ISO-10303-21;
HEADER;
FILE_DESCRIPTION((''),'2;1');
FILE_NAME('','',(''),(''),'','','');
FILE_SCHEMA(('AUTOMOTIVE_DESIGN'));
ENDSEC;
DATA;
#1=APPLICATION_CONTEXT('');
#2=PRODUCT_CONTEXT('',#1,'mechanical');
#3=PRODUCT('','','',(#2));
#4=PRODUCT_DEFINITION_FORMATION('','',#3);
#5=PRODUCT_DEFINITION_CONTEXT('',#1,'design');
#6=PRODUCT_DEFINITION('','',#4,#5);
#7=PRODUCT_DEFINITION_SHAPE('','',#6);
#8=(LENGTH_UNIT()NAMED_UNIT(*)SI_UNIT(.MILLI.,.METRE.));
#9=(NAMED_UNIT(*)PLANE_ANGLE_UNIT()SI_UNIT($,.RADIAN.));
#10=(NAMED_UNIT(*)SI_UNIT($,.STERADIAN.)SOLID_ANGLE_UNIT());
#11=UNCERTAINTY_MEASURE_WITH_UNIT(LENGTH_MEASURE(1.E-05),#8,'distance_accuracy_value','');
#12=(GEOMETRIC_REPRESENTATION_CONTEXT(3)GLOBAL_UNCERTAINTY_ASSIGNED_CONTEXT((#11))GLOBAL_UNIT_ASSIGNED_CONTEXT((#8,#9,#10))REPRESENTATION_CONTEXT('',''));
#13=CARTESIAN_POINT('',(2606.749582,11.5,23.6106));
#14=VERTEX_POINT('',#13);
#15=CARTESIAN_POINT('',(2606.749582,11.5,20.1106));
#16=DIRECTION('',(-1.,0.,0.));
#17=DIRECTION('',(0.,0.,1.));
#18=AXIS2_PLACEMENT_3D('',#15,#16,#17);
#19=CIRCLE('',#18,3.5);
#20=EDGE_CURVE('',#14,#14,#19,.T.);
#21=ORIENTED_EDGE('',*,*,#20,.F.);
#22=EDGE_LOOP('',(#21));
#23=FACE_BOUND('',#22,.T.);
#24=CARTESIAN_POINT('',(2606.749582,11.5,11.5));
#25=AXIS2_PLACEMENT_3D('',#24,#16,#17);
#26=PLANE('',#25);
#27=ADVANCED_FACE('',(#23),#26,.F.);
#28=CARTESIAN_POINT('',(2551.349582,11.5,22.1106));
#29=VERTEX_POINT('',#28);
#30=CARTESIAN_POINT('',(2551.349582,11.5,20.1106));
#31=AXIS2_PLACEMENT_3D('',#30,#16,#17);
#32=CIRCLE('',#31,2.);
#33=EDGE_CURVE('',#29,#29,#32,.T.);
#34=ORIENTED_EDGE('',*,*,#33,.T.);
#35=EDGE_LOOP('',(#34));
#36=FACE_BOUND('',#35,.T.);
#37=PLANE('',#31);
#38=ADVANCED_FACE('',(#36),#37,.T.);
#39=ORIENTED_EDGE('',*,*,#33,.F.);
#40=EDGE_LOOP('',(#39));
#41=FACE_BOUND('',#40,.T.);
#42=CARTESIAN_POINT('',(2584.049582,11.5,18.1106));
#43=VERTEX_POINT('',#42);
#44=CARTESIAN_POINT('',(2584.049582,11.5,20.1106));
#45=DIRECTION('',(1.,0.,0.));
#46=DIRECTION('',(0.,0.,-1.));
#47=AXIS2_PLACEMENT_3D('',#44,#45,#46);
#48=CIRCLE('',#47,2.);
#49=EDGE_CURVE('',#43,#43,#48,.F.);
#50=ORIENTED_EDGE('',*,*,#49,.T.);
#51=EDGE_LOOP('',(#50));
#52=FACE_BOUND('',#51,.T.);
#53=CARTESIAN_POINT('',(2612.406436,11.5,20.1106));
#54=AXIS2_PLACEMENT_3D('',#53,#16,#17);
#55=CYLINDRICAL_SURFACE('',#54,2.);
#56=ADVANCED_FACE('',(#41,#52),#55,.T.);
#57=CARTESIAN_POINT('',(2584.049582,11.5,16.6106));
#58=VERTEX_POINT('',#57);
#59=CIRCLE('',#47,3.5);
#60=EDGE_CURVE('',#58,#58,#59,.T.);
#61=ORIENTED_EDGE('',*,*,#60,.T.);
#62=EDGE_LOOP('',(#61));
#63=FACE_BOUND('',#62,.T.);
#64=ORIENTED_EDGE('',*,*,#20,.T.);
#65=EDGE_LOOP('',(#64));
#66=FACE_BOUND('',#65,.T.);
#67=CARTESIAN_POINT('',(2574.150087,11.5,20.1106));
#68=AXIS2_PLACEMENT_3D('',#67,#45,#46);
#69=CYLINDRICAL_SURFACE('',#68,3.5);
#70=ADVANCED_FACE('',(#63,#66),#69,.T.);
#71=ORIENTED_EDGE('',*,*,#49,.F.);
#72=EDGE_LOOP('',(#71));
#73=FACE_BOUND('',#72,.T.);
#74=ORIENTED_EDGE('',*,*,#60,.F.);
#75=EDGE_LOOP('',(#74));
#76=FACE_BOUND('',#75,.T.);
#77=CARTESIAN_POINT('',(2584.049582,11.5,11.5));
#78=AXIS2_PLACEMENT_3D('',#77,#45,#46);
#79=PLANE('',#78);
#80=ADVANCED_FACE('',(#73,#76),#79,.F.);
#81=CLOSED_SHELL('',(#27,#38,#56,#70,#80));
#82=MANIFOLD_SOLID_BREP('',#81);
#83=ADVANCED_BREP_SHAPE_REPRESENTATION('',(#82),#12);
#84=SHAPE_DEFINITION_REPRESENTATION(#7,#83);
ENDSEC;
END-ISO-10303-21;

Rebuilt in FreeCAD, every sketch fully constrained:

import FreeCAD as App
import Part
import Sketcher

V = App.Vector

doc = App.newDocument("Part")
params = doc.addObject("Spreadsheet::Sheet", "Params")
for row, (alias, value) in enumerate([
    ("sketch1_diameter", "4 mm"),
    ("pad1_length", "55.4 mm"),
    ("sketch2_diameter", "7 mm"),
    ("pad2_length", "22.7 mm"),
], start=1):
    params.set(f"A{row}", alias)
    params.set(f"B{row}", "=" + value)
    params.setAlias(f"B{row}", alias)

body = doc.addObject("PartDesign::Body", "Body")

sketch1 = body.newObject("Sketcher::SketchObject", "Sketch")
sketch1.AttachmentSupport = (doc.getObject("YZ_Plane"), [""])
sketch1.MapMode = "FlatFace"
sketch1.AttachmentOffset = App.Placement(V(0, 0, 2551.349582), App.Rotation())
sketch1.addGeometry(Part.Circle(V(11.5, 20.1106, 0), V(0, 0, 1), 2), False)
sketch1.addConstraint(Sketcher.Constraint("Diameter", 0, 4.0))
sketch1.addConstraint(Sketcher.Constraint("DistanceX", -1, 1, 0, 3, 11.5))
sketch1.addConstraint(Sketcher.Constraint("DistanceY", -1, 1, 0, 3, 20.1106))
sketch1.setExpression("Constraints[0]", "Params.sketch1_diameter")
pad1 = body.newObject("PartDesign::Pad", "Pad")
pad1.Profile = sketch1
pad1.setExpression("Length", "Params.pad1_length")

sketch2 = body.newObject("Sketcher::SketchObject", "Sketch001")
sketch2.AttachmentSupport = (doc.getObject("YZ_Plane"), [""])
sketch2.MapMode = "FlatFace"
sketch2.AttachmentOffset = App.Placement(V(0, 0, 2606.749582), App.Rotation())
sketch2.addGeometry(Part.Circle(V(11.5, 20.1106, 0), V(0, 0, 1), 3.5), False)
sketch2.addConstraint(Sketcher.Constraint("Diameter", 0, 7.0))
sketch2.addConstraint(Sketcher.Constraint("DistanceX", -1, 1, 0, 3, 11.5))
sketch2.addConstraint(Sketcher.Constraint("DistanceY", -1, 1, 0, 3, 20.1106))
sketch2.setExpression("Constraints[0]", "Params.sketch2_diameter")
pad2 = body.newObject("PartDesign::Pad", "Pad001")
pad2.Profile = sketch2
pad2.setExpression("Length", "Params.pad2_length")
pad2.Reversed = True

doc.recompute()
